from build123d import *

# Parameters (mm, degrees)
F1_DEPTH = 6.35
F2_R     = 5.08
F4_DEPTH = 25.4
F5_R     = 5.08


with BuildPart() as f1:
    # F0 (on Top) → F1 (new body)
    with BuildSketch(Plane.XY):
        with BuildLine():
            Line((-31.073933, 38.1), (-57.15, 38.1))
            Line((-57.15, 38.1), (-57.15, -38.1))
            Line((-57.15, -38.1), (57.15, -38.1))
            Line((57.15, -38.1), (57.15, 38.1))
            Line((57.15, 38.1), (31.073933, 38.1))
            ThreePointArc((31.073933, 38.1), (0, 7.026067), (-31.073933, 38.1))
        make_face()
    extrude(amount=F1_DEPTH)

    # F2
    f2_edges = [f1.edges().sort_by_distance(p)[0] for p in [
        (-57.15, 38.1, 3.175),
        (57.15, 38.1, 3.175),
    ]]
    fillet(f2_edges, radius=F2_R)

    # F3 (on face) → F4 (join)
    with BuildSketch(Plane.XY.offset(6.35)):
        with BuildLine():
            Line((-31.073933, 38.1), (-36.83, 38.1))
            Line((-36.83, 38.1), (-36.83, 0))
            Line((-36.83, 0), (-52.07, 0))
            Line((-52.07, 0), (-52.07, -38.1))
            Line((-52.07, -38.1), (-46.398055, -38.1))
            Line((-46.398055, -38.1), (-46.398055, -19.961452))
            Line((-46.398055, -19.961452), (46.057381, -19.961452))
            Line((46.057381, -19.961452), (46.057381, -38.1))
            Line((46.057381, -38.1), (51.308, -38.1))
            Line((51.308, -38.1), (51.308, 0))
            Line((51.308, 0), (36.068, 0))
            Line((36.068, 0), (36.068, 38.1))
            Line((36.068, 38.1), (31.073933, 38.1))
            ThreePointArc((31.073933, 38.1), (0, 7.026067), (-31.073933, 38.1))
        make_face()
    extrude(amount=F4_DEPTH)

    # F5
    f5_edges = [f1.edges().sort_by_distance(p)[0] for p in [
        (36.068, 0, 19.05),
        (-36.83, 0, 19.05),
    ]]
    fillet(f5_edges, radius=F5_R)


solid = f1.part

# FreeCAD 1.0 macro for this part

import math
import FreeCAD as App
import Part
import Sketcher
from FreeCAD import Vector
Q = App.Units.Quantity


def edges_at(feature, points):
    """Names of the edges that pass closest to the given points."""
    edges = feature.Shape.Edges
    near = lambda p: min(range(len(edges)), key=lambda i: edges[i].distToShape(Part.Vertex(*p))[0])
    return sorted({f"Edge{near(p) + 1}" for p in points})

doc = App.newDocument("Part")
body = doc.addObject("PartDesign::Body", "Body")

# Sketch on XY plane
sketch1 = doc.addObject("Sketcher::SketchObject", "Sketch")
body.addObject(sketch1)
sketch1.AttachmentSupport = (doc.XY_Plane, [""])
sketch1.MapMode = "FlatFace"
sketch1.addGeometry(Part.LineSegment(Vector(-31, 38, 0), Vector(-57, 38, 0)), False)
sketch1.addGeometry(Part.LineSegment(Vector(-57, 38, 0), Vector(-57, -38, 0)), False)
sketch1.addGeometry(Part.LineSegment(Vector(-57, -38, 0), Vector(57, -38, 0)), False)
sketch1.addGeometry(Part.LineSegment(Vector(57, -38, 0), Vector(57, 38, 0)), False)
sketch1.addGeometry(Part.LineSegment(Vector(57, 38, 0), Vector(31, 38, 0)), False)
sketch1.addGeometry(Part.ArcOfCircle(Part.Circle(Vector(0, 38, 0), Vector(0, 0, 1), 31), math.radians(180), math.radians(360)), False)
sketch1.addConstraint(Sketcher.Constraint("Coincident", 0, 2, 1, 1))
sketch1.addConstraint(Sketcher.Constraint("Coincident", 1, 2, 2, 1))
sketch1.addConstraint(Sketcher.Constraint("Coincident", 2, 2, 3, 1))
sketch1.addConstraint(Sketcher.Constraint("Coincident", 3, 2, 4, 1))
sketch1.addConstraint(Sketcher.Constraint("Coincident", 4, 2, 5, 2))
sketch1.addConstraint(Sketcher.Constraint("Coincident", 5, 1, 0, 1))
sketch1.addConstraint(Sketcher.Constraint("Horizontal", 0))
sketch1.addConstraint(Sketcher.Constraint("Vertical", 1))
sketch1.addConstraint(Sketcher.Constraint("Horizontal", 2))
sketch1.addConstraint(Sketcher.Constraint("Vertical", 3))
sketch1.addConstraint(Sketcher.Constraint("Horizontal", 4))
sketch1.addConstraint(Sketcher.Constraint("Symmetric", 0, 2, 2, 2, -1, 1))
sketch1.addConstraint(Sketcher.Constraint("Symmetric", 4, 2, 5, 1, -2))
sketch1.addConstraint(Sketcher.Constraint("Horizontal", 5, 3, 0, 2))
sketch1.addConstraint(Sketcher.Constraint("DistanceY", 1, 2, 1, 1, Q("3 in")))
sketch1.addConstraint(Sketcher.Constraint("DistanceX", 2, 1, 2, 2, Q("4.5 in")))
sketch1.addConstraint(Sketcher.Constraint("Radius", 5, Q("31.073933 mm")))
pad1 = doc.addObject("PartDesign::Pad", "Pad")
body.addObject(pad1)
pad1.Profile = sketch1
pad1.Length = Q("0.25 in")
doc.recompute()

fillet = doc.addObject("PartDesign::Fillet", "Fillet")
body.addObject(fillet)
fillet.Base = (pad1, edges_at(pad1, [(-57.15, 38.1, 3.175), (57.15, 38.1, 3.175)]))
fillet.Radius = Q("0.2 in")

# Sketch on XY plane
sketch2 = doc.addObject("Sketcher::SketchObject", "Sketch001")
body.addObject(sketch2)
sketch2.AttachmentSupport = (doc.XY_Plane, [""])
sketch2.MapMode = "FlatFace"
sketch2.AttachmentOffset = App.Placement(Vector(0, 0, 0.25 * 25.4), App.Rotation())
sketch2.addGeometry(Part.LineSegment(Vector(-31.1, 38.1, 0), Vector(-36.8, 38.1, 0)), False)
sketch2.addGeometry(Part.LineSegment(Vector(-36.8, 38.1, 0), Vector(-36.8, 0, 0)), False)
sketch2.addGeometry(Part.LineSegment(Vector(-36.8, 0, 0), Vector(-52.1, 0, 0)), False)
sketch2.addGeometry(Part.LineSegment(Vector(-52.1, 0, 0), Vector(-52.1, -38.1, 0)), False)
sketch2.addGeometry(Part.LineSegment(Vector(-52.1, -38.1, 0), Vector(-46.4, -38.1, 0)), False)
sketch2.addGeometry(Part.LineSegment(Vector(-46.4, -38.1, 0), Vector(-46.4, -20, 0)), False)
sketch2.addGeometry(Part.LineSegment(Vector(-46.4, -20, 0), Vector(46.1, -20, 0)), False)
sketch2.addGeometry(Part.LineSegment(Vector(46.1, -20, 0), Vector(46.1, -38.1, 0)), False)
sketch2.addGeometry(Part.LineSegment(Vector(46.1, -38.1, 0), Vector(51.3, -38.1, 0)), False)
sketch2.addGeometry(Part.LineSegment(Vector(51.3, -38.1, 0), Vector(51.3, 0, 0)), False)
sketch2.addGeometry(Part.LineSegment(Vector(51.3, 0, 0), Vector(36.1, 0, 0)), False)
sketch2.addGeometry(Part.LineSegment(Vector(36.1, 0, 0), Vector(36.1, 38.1, 0)), False)
sketch2.addGeometry(Part.LineSegment(Vector(36.1, 38.1, 0), Vector(31.1, 38.1, 0)), False)
sketch2.addGeometry(Part.ArcOfCircle(Part.Circle(Vector(0, 38.1, 0), Vector(0, 0, 1), 31.1), math.radians(180), math.radians(360)), False)
sketch2.addConstraint(Sketcher.Constraint("Coincident", 0, 2, 1, 1))
sketch2.addConstraint(Sketcher.Constraint("Coincident", 1, 2, 2, 1))
sketch2.addConstraint(Sketcher.Constraint("Coincident", 2, 2, 3, 1))
sketch2.addConstraint(Sketcher.Constraint("Coincident", 3, 2, 4, 1))
sketch2.addConstraint(Sketcher.Constraint("Coincident", 4, 2, 5, 1))
sketch2.addConstraint(Sketcher.Constraint("Coincident", 5, 2, 6, 1))
sketch2.addConstraint(Sketcher.Constraint("Coincident", 6, 2, 7, 1))
sketch2.addConstraint(Sketcher.Constraint("Coincident", 7, 2, 8, 1))
sketch2.addConstraint(Sketcher.Constraint("Coincident", 8, 2, 9, 1))
sketch2.addConstraint(Sketcher.Constraint("Coincident", 9, 2, 10, 1))
sketch2.addConstraint(Sketcher.Constraint("Coincident", 10, 2, 11, 1))
sketch2.addConstraint(Sketcher.Constraint("Coincident", 11, 2, 12, 1))
sketch2.addConstraint(Sketcher.Constraint("Coincident", 12, 2, 13, 2))
sketch2.addConstraint(Sketcher.Constraint("Coincident", 13, 1, 0, 1))
sketch2.addConstraint(Sketcher.Constraint("Horizontal", 0))
sketch2.addConstraint(Sketcher.Constraint("Vertical", 1))
sketch2.addConstraint(Sketcher.Constraint("Horizontal", 2))
sketch2.addConstraint(Sketcher.Constraint("Vertical", 3))
sketch2.addConstraint(Sketcher.Constraint("Horizontal", 4))
sketch2.addConstraint(Sketcher.Constraint("Vertical", 5))
sketch2.addConstraint(Sketcher.Constraint("Horizontal", 6))
sketch2.addConstraint(Sketcher.Constraint("Vertical", 7))
sketch2.addConstraint(Sketcher.Constraint("Horizontal", 8))
sketch2.addConstraint(Sketcher.Constraint("Vertical", 9))
sketch2.addConstraint(Sketcher.Constraint("Horizontal", 10))
sketch2.addConstraint(Sketcher.Constraint("Vertical", 11))
sketch2.addConstraint(Sketcher.Constraint("Horizontal", 12))
sketch2.addConstraint(Sketcher.Constraint("Symmetric", 12, 2, 13, 1, -2))
sketch2.addConstraint(Sketcher.Constraint("PointOnObject", 1, 2, -1))
sketch2.addConstraint(Sketcher.Constraint("PointOnObject", 9, 2, -1))
sketch2.addConstraint(Sketcher.Constraint("Horizontal", 13, 3, 0, 2))
sketch2.addConstraint(Sketcher.Constraint("Horizontal", 4, 2, 7, 2))
sketch2.addConstraint(Sketcher.Constraint("Equal", 2, 10))
sketch2.addConstraint(Sketcher.Constraint("Equal", 1, 3))
sketch2.addConstraint(Sketcher.Constraint("DistanceX", 2, 2, 2, 1, Q("0.6 in")))
sketch2.addConstraint(Sketcher.Constraint("DistanceY", 1, 2, 1, 1, Q("1.5 in")))
sketch2.addConstraint(Sketcher.Constraint("DistanceX", 0, 2, -1, 1, Q("1.45 in")))
sketch2.addConstraint(Sketcher.Constraint("DistanceX", -1, 1, 8, 2, Q("2.02 in")))
sketch2.addConstraint(Sketcher.Constraint("Radius", 13, Q("31.073933 mm")))
sketch2.addConstraint(Sketcher.Constraint("DistanceX", 8, 1, 8, 2, Q("5.250619 mm")))
sketch2.addConstraint(Sketcher.Constraint("DistanceY", 5, 1, 5, 2, Q("18.138548 mm")))
sketch2.addConstraint(Sketcher.Constraint("DistanceX", 4, 1, 4, 2, Q("5.671945 mm")))
pad2 = doc.addObject("PartDesign::Pad", "Pad001")
body.addObject(pad2)
pad2.Profile = sketch2
pad2.Length = Q("1 in")
doc.recompute()

fillet2 = doc.addObject("PartDesign::Fillet", "Fillet001")
body.addObject(fillet2)
fillet2.Base = (pad2, edges_at(pad2, [(36.068, 0, 19.05), (-36.83, 0, 19.05)]))
fillet2.Radius = Q("0.2 in")

doc.recompute()
